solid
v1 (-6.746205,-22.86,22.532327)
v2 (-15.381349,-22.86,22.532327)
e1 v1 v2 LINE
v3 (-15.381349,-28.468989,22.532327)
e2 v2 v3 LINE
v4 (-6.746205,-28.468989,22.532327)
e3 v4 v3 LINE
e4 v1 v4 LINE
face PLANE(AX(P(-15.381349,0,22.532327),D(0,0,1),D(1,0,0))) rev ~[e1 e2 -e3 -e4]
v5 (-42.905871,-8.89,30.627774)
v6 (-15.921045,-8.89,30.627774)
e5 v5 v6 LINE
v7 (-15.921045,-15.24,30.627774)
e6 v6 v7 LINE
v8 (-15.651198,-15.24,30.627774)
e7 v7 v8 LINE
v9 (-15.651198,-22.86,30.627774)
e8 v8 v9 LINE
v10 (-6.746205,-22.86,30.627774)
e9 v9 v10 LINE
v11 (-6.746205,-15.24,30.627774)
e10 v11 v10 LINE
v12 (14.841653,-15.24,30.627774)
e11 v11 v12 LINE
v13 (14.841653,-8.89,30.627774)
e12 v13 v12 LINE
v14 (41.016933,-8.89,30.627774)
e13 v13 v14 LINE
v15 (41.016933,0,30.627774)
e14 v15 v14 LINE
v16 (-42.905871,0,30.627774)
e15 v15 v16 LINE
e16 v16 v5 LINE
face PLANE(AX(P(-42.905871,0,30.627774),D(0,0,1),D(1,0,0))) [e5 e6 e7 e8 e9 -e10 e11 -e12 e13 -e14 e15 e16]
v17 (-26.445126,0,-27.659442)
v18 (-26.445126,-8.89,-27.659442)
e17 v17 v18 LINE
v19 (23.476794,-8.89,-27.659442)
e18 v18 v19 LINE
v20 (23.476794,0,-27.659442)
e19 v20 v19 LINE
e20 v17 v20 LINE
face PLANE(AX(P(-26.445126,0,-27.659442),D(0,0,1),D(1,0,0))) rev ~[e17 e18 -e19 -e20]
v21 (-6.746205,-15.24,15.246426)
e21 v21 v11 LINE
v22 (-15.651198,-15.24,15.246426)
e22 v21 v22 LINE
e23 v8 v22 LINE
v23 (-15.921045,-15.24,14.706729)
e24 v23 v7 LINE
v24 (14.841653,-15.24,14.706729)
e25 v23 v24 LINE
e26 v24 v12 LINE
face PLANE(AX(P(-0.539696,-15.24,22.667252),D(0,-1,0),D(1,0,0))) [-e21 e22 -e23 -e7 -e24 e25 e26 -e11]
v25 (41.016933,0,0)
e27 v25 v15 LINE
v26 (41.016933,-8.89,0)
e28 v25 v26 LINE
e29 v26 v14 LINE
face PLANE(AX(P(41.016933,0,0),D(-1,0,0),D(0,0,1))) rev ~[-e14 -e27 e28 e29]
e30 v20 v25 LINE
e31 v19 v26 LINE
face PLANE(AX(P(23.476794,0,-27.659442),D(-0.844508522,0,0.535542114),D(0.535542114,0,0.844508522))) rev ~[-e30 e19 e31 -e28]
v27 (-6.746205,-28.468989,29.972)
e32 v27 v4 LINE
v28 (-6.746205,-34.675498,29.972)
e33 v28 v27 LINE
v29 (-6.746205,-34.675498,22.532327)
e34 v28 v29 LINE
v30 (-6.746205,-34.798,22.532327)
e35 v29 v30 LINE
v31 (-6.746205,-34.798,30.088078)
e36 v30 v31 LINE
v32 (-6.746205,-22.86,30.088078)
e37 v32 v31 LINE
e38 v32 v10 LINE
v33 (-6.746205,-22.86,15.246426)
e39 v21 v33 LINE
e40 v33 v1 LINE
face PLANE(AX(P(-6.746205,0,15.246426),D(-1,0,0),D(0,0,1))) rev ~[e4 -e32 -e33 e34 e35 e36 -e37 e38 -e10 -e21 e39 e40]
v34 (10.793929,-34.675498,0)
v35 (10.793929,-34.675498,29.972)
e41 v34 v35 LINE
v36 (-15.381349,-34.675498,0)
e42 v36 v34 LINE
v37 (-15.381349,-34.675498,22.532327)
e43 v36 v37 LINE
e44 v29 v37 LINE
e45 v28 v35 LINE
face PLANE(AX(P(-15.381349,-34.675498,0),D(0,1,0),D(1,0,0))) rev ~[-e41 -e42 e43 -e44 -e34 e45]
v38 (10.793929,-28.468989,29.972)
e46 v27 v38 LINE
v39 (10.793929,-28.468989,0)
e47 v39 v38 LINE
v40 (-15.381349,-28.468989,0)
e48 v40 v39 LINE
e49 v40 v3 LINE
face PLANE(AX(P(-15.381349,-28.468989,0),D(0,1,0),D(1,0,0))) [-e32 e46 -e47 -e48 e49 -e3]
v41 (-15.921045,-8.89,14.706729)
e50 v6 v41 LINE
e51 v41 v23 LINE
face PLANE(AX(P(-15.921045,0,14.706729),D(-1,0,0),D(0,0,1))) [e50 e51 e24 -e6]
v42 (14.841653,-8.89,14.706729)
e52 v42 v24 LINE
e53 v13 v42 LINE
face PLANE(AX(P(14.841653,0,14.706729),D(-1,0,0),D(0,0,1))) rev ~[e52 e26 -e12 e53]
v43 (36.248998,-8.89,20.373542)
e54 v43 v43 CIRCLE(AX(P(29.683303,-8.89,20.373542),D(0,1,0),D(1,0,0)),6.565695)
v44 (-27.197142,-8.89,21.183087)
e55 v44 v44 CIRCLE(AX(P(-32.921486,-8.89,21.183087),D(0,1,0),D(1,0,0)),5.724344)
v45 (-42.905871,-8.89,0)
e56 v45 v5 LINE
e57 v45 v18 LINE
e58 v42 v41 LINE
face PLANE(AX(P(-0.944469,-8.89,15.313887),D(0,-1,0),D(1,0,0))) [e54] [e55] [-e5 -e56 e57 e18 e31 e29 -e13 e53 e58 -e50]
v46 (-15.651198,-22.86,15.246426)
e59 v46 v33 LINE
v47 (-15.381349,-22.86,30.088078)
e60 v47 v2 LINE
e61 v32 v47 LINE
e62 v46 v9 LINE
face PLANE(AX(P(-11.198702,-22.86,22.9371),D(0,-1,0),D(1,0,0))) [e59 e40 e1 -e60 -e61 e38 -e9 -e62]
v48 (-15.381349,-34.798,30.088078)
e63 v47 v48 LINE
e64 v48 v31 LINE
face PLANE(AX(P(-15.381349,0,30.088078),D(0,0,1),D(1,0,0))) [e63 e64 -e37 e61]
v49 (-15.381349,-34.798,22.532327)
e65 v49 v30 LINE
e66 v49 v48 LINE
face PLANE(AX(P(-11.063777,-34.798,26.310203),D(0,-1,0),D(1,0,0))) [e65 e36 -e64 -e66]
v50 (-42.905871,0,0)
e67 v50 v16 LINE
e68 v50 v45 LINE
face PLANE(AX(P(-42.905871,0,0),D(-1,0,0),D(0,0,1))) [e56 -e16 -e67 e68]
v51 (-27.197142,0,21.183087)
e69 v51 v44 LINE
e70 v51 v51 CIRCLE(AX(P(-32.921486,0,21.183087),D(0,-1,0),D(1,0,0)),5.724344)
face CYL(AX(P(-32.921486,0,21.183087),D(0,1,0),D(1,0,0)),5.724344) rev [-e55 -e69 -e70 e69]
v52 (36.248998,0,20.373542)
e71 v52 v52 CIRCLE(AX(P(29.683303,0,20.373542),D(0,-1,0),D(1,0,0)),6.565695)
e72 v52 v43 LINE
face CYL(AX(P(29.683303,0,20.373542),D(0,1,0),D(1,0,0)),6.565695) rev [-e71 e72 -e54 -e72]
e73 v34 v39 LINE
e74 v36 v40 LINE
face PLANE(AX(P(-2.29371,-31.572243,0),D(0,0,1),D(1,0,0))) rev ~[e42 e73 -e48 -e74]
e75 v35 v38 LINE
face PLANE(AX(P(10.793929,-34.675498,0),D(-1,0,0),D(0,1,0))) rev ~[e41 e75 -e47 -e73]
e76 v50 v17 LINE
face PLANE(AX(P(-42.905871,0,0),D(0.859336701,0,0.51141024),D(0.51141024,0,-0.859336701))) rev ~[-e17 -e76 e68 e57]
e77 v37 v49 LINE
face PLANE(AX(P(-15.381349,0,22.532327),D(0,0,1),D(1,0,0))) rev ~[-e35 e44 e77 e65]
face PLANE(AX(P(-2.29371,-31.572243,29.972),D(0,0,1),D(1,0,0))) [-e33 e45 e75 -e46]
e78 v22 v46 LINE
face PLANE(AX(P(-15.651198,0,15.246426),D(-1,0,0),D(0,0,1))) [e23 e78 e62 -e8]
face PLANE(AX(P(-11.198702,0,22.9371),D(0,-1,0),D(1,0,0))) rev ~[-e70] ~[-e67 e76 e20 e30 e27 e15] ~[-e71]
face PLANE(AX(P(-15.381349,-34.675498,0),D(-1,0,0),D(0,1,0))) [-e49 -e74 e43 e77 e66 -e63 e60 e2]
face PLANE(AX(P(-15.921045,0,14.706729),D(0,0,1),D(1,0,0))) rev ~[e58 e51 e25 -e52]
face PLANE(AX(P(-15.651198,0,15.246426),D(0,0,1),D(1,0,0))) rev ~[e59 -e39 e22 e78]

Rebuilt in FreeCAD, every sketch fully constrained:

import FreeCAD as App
import Part
import Sketcher

V = App.Vector
Q = App.Units.Quantity


def add_polygon(sketch, points):
    """Adds a closed chain of lines whose ends are joined by coincident constraints."""
    first, n = sketch.GeometryCount, len(points)
    for a, b in zip(points, points[1:] + points[:1]):
        sketch.addGeometry(Part.LineSegment(App.Vector(*a, 0), App.Vector(*b, 0)), False)
    for i in range(n):
        sketch.addConstraint(Sketcher.Constraint("Coincident", first + i, 2, first + (i + 1) % n, 1))

doc = App.newDocument("Part")
body = doc.addObject("PartDesign::Body", "Body")

# Sketch on XZ plane
sketch1 = body.newObject("Sketcher::SketchObject", "Sketch")
sketch1.AttachmentSupport = (doc.getObject("XZ_Plane"), [""])
sketch1.MapMode = "FlatFace"
add_polygon(sketch1, [(-43, 31), (-43, 0), (-26, -28), (23, -28), (41, 0), (41, 31)])  # lines 0-5
sketch1.addConstraint([
    Sketcher.Constraint("Vertical", 0),
    Sketcher.Constraint("Horizontal", 2),
    Sketcher.Constraint("Vertical", 4),
    Sketcher.Constraint("Horizontal", 5),
    Sketcher.Constraint("PointOnObject", 0, 2, -1),
    Sketcher.Constraint("PointOnObject", 3, 2, -1),
    Sketcher.Constraint("DistanceX", 2, 1, 2, 2, Q("49.921921 mm")),
    Sketcher.Constraint("DistanceX", 5, 2, 5, 1, Q("83.922803 mm")),
    Sketcher.Constraint("DistanceY", 0, 2, 0, 1, Q("30.627774 mm")),
    Sketcher.Constraint("DistanceX", 0, 2, -1, 1, Q("42.905871 mm")),
    Sketcher.Constraint("DistanceX", 2, 2, 3, 2, Q("17.540138 mm")),
    Sketcher.Constraint("Distance", 1, Q("32.186967 mm")),
])
pad1 = body.newObject("PartDesign::Pad", "Pad")
pad1.Profile = sketch1
pad1.Length = Q("0.35 in")

# Sketch on XZ plane
sketch2 = body.newObject("Sketcher::SketchObject", "Sketch001")
sketch2.AttachmentSupport = (doc.getObject("XZ_Plane"), [""])
sketch2.MapMode = "FlatFace"
add_polygon(sketch2, [(-16, 31), (-16, 15), (15, 15), (15, 31)])  # lines 0-3
sketch2.addConstraint([
    Sketcher.Constraint("Vertical", 0),
    Sketcher.Constraint("Horizontal", 1),
    Sketcher.Constraint("Vertical", 2),
    Sketcher.Constraint("Horizontal", 3),
    Sketcher.Constraint("DistanceX", 1, 1, 1, 2, Q("30.762699 mm")),
    Sketcher.Constraint("DistanceY", 0, 2, 0, 1, Q("15.921045 mm")),
    Sketcher.Constraint("DistanceY", -1, 1, 0, 2, Q("14.706729 mm")),
    Sketcher.Constraint("DistanceX", 0, 2, -1, 1, Q("15.921045 mm")),
])
pad2 = body.newObject("PartDesign::Pad", "Pad001")
pad2.Profile = sketch2
pad2.Length = Q("0.6 in")

# Sketch on XZ plane
sketch3 = body.newObject("Sketcher::SketchObject", "Sketch002")
sketch3.AttachmentSupport = (doc.getObject("XZ_Plane"), [""])
sketch3.MapMode = "FlatFace"
add_polygon(sketch3, [(-16, 31), (-16, 15), (-7, 15), (-7, 31)])  # lines 0-3
sketch3.addConstraint([
    Sketcher.Constraint("Vertical", 0),
    Sketcher.Constraint("Horizontal", 1),
    Sketcher.Constraint("Vertical", 2),
    Sketcher.Constraint("Horizontal", 3),
    Sketcher.Constraint("DistanceY", 0, 2, 0, 1, Q("15.381348 mm")),
    Sketcher.Constraint("DistanceX", 0, 2, -1, 1, Q("15.651198 mm")),
    Sketcher.Constraint("DistanceX", 1, 1, 1, 2, Q("8.904993 mm")),
    Sketcher.Constraint("DistanceY", -1, 1, 0, 2, Q("15.246426 mm")),
])
pad3 = body.newObject("PartDesign::Pad", "Pad002")
pad3.Profile = sketch3
pad3.Length = Q("0.9 in")

# Sketch on XZ plane
sketch4 = body.newObject("Sketcher::SketchObject", "Sketch003")
sketch4.AttachmentSupport = (doc.getObject("XZ_Plane"), [""])
sketch4.MapMode = "FlatFace"
add_polygon(sketch4, [(-15, 30), (-15, 23), (-7, 23), (-7, 30)])  # lines 0-3
sketch4.addConstraint([
    Sketcher.Constraint("Vertical", 0),
    Sketcher.Constraint("Horizontal", 1),
    Sketcher.Constraint("Vertical", 2),
    Sketcher.Constraint("Horizontal", 3),
    Sketcher.Constraint("DistanceY", 0, 2, 0, 1, Q("7.555751 mm")),
    Sketcher.Constraint("DistanceX", 1, 1, 1, 2, Q("8.635144 mm")),
    Sketcher.Constraint("DistanceX", 0, 2, -1, 1, Q("15.381349 mm")),
    Sketcher.Constraint("DistanceY", -1, 1, 2, 2, Q("30.088078 mm")),
])
pad4 = body.newObject("PartDesign::Pad", "Pad003")
pad4.Profile = sketch4
pad4.Length = Q("1.37 in")

# Sketch on XY plane
sketch5 = body.newObject("Sketcher::SketchObject", "Sketch004")
sketch5.AttachmentSupport = (doc.getObject("XY_Plane"), [""])
sketch5.MapMode = "FlatFace"
add_polygon(sketch5, [(-15, -28), (-15, -35), (11, -35), (11, -28)])  # lines 0-3
sketch5.addConstraint([
    Sketcher.Constraint("Vertical", 0),
    Sketcher.Constraint("Horizontal", 1),
    Sketcher.Constraint("Vertical", 2),
    Sketcher.Constraint("Horizontal", 3),
    Sketcher.Constraint("DistanceX", 1, 1, 1, 2, Q("26.175278 mm")),
    Sketcher.Constraint("DistanceY", 0, 2, 0, 1, Q("6.206509 mm")),
    Sketcher.Constraint("DistanceX", 0, 2, -1, 1, Q("15.381349 mm")),
    Sketcher.Constraint("DistanceY", 2, 2, -1, 1, Q("28.468989 mm")),
])
pad5 = body.newObject("PartDesign::Pad", "Pad004")
pad5.Profile = sketch5
pad5.Length = Q("1.18 in")

# Sketch on XZ plane
sketch6 = body.newObject("Sketcher::SketchObject", "Sketch005")
sketch6.AttachmentSupport = (doc.getObject("XZ_Plane"), [""])
sketch6.MapMode = "FlatFace"
sketch6.addGeometry([
    Part.Circle(V(-33, 21, 0), V(0, 0, 1), 6),
    Part.Circle(V(30, 20, 0), V(0, 0, 1), 7),
], False)
sketch6.addConstraint([
    Sketcher.Constraint("Diameter", 1, Q("13.131389 mm")),
    Sketcher.Constraint("Diameter", 0, Q("11.448687 mm")),
    Sketcher.Constraint("DistanceY", -1, 1, 1, 3, Q("20.373542 mm")),
    Sketcher.Constraint("DistanceX", 0, 3, 1, 3, Q("62.604789 mm")),
    Sketcher.Constraint("DistanceX", 0, 3, -1, 1, Q("32.921486 mm")),
    Sketcher.Constraint("DistanceY", -1, 1, 0, 3, Q("21.183087 mm")),
])
pocket1 = body.newObject("PartDesign::Pocket", "Pocket")
pocket1.Profile = sketch6
pocket1.Length = Q("1 in")
pocket1.Reversed = True

doc.recompute()
